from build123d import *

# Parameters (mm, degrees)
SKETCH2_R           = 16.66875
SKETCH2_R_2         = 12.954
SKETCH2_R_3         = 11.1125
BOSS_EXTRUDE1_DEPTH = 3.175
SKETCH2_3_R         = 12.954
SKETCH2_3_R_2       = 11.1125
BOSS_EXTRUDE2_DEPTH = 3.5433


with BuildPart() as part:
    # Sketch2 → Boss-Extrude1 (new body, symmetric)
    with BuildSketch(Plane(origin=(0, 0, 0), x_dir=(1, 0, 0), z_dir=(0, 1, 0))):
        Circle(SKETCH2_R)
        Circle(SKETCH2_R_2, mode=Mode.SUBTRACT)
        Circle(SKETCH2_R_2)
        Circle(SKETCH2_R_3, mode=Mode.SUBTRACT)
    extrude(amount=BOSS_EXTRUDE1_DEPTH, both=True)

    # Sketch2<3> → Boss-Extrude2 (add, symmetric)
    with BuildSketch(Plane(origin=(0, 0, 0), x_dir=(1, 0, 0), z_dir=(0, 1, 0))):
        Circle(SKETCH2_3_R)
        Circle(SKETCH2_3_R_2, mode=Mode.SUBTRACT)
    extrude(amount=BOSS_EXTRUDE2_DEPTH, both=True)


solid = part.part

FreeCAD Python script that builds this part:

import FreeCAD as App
import Part
import Sketcher
from FreeCAD import Vector
Q = App.Units.Quantity

doc = App.newDocument("Part")
body = doc.addObject("PartDesign::Body", "Body")

# Sketch on XZ plane
sketch1 = doc.addObject("Sketcher::SketchObject", "Sketch")
body.addObject(sketch1)
sketch1.AttachmentSupport = (doc.XZ_Plane, [""])
sketch1.MapMode = "FlatFace"
sketch1.addGeometry([
    Part.Circle(Vector(0, 0, 0), Vector(0, 0, 1), 16.66875),
    Part.Circle(Vector(0, 0, 0), Vector(0, 0, 1), 11.1125),
], False)
sketch1.addConstraint([
    Sketcher.Constraint("Coincident", 0, 3, -1, 1),
    Sketcher.Constraint("Coincident", 1, 3, -1, 1),
    Sketcher.Constraint("Diameter", 0, Q("1.3125 in")),
    Sketcher.Constraint("Diameter", 1, Q("0.875 in")),
])
pad1 = doc.addObject("PartDesign::Pad", "Pad")
body.addObject(pad1)
pad1.Profile = sketch1
pad1.Length = Q("0.25 in")
pad1.Midplane = True

# Sketch on XZ plane
sketch2 = doc.addObject("Sketcher::SketchObject", "Sketch001")
body.addObject(sketch2)
sketch2.AttachmentSupport = (doc.XZ_Plane, [""])
sketch2.MapMode = "FlatFace"
sketch2.addGeometry([
    Part.Circle(Vector(0, 0, 0), Vector(0, 0, 1), 12.954),
    Part.Circle(Vector(0, 0, 0), Vector(0, 0, 1), 11.1125),
], False)
sketch2.addConstraint([
    Sketcher.Constraint("Coincident", 0, 3, -1, 1),
    Sketcher.Constraint("Coincident", 1, 3, -1, 1),
    Sketcher.Constraint("Diameter", 0, Q("1.02 in")),
    Sketcher.Constraint("Diameter", 1, Q("0.875 in")),
])
pad2 = doc.addObject("PartDesign::Pad", "Pad001")
body.addObject(pad2)
pad2.Profile = sketch2
pad2.Length = Q("0.279 in")
pad2.Midplane = True

doc.recompute()
